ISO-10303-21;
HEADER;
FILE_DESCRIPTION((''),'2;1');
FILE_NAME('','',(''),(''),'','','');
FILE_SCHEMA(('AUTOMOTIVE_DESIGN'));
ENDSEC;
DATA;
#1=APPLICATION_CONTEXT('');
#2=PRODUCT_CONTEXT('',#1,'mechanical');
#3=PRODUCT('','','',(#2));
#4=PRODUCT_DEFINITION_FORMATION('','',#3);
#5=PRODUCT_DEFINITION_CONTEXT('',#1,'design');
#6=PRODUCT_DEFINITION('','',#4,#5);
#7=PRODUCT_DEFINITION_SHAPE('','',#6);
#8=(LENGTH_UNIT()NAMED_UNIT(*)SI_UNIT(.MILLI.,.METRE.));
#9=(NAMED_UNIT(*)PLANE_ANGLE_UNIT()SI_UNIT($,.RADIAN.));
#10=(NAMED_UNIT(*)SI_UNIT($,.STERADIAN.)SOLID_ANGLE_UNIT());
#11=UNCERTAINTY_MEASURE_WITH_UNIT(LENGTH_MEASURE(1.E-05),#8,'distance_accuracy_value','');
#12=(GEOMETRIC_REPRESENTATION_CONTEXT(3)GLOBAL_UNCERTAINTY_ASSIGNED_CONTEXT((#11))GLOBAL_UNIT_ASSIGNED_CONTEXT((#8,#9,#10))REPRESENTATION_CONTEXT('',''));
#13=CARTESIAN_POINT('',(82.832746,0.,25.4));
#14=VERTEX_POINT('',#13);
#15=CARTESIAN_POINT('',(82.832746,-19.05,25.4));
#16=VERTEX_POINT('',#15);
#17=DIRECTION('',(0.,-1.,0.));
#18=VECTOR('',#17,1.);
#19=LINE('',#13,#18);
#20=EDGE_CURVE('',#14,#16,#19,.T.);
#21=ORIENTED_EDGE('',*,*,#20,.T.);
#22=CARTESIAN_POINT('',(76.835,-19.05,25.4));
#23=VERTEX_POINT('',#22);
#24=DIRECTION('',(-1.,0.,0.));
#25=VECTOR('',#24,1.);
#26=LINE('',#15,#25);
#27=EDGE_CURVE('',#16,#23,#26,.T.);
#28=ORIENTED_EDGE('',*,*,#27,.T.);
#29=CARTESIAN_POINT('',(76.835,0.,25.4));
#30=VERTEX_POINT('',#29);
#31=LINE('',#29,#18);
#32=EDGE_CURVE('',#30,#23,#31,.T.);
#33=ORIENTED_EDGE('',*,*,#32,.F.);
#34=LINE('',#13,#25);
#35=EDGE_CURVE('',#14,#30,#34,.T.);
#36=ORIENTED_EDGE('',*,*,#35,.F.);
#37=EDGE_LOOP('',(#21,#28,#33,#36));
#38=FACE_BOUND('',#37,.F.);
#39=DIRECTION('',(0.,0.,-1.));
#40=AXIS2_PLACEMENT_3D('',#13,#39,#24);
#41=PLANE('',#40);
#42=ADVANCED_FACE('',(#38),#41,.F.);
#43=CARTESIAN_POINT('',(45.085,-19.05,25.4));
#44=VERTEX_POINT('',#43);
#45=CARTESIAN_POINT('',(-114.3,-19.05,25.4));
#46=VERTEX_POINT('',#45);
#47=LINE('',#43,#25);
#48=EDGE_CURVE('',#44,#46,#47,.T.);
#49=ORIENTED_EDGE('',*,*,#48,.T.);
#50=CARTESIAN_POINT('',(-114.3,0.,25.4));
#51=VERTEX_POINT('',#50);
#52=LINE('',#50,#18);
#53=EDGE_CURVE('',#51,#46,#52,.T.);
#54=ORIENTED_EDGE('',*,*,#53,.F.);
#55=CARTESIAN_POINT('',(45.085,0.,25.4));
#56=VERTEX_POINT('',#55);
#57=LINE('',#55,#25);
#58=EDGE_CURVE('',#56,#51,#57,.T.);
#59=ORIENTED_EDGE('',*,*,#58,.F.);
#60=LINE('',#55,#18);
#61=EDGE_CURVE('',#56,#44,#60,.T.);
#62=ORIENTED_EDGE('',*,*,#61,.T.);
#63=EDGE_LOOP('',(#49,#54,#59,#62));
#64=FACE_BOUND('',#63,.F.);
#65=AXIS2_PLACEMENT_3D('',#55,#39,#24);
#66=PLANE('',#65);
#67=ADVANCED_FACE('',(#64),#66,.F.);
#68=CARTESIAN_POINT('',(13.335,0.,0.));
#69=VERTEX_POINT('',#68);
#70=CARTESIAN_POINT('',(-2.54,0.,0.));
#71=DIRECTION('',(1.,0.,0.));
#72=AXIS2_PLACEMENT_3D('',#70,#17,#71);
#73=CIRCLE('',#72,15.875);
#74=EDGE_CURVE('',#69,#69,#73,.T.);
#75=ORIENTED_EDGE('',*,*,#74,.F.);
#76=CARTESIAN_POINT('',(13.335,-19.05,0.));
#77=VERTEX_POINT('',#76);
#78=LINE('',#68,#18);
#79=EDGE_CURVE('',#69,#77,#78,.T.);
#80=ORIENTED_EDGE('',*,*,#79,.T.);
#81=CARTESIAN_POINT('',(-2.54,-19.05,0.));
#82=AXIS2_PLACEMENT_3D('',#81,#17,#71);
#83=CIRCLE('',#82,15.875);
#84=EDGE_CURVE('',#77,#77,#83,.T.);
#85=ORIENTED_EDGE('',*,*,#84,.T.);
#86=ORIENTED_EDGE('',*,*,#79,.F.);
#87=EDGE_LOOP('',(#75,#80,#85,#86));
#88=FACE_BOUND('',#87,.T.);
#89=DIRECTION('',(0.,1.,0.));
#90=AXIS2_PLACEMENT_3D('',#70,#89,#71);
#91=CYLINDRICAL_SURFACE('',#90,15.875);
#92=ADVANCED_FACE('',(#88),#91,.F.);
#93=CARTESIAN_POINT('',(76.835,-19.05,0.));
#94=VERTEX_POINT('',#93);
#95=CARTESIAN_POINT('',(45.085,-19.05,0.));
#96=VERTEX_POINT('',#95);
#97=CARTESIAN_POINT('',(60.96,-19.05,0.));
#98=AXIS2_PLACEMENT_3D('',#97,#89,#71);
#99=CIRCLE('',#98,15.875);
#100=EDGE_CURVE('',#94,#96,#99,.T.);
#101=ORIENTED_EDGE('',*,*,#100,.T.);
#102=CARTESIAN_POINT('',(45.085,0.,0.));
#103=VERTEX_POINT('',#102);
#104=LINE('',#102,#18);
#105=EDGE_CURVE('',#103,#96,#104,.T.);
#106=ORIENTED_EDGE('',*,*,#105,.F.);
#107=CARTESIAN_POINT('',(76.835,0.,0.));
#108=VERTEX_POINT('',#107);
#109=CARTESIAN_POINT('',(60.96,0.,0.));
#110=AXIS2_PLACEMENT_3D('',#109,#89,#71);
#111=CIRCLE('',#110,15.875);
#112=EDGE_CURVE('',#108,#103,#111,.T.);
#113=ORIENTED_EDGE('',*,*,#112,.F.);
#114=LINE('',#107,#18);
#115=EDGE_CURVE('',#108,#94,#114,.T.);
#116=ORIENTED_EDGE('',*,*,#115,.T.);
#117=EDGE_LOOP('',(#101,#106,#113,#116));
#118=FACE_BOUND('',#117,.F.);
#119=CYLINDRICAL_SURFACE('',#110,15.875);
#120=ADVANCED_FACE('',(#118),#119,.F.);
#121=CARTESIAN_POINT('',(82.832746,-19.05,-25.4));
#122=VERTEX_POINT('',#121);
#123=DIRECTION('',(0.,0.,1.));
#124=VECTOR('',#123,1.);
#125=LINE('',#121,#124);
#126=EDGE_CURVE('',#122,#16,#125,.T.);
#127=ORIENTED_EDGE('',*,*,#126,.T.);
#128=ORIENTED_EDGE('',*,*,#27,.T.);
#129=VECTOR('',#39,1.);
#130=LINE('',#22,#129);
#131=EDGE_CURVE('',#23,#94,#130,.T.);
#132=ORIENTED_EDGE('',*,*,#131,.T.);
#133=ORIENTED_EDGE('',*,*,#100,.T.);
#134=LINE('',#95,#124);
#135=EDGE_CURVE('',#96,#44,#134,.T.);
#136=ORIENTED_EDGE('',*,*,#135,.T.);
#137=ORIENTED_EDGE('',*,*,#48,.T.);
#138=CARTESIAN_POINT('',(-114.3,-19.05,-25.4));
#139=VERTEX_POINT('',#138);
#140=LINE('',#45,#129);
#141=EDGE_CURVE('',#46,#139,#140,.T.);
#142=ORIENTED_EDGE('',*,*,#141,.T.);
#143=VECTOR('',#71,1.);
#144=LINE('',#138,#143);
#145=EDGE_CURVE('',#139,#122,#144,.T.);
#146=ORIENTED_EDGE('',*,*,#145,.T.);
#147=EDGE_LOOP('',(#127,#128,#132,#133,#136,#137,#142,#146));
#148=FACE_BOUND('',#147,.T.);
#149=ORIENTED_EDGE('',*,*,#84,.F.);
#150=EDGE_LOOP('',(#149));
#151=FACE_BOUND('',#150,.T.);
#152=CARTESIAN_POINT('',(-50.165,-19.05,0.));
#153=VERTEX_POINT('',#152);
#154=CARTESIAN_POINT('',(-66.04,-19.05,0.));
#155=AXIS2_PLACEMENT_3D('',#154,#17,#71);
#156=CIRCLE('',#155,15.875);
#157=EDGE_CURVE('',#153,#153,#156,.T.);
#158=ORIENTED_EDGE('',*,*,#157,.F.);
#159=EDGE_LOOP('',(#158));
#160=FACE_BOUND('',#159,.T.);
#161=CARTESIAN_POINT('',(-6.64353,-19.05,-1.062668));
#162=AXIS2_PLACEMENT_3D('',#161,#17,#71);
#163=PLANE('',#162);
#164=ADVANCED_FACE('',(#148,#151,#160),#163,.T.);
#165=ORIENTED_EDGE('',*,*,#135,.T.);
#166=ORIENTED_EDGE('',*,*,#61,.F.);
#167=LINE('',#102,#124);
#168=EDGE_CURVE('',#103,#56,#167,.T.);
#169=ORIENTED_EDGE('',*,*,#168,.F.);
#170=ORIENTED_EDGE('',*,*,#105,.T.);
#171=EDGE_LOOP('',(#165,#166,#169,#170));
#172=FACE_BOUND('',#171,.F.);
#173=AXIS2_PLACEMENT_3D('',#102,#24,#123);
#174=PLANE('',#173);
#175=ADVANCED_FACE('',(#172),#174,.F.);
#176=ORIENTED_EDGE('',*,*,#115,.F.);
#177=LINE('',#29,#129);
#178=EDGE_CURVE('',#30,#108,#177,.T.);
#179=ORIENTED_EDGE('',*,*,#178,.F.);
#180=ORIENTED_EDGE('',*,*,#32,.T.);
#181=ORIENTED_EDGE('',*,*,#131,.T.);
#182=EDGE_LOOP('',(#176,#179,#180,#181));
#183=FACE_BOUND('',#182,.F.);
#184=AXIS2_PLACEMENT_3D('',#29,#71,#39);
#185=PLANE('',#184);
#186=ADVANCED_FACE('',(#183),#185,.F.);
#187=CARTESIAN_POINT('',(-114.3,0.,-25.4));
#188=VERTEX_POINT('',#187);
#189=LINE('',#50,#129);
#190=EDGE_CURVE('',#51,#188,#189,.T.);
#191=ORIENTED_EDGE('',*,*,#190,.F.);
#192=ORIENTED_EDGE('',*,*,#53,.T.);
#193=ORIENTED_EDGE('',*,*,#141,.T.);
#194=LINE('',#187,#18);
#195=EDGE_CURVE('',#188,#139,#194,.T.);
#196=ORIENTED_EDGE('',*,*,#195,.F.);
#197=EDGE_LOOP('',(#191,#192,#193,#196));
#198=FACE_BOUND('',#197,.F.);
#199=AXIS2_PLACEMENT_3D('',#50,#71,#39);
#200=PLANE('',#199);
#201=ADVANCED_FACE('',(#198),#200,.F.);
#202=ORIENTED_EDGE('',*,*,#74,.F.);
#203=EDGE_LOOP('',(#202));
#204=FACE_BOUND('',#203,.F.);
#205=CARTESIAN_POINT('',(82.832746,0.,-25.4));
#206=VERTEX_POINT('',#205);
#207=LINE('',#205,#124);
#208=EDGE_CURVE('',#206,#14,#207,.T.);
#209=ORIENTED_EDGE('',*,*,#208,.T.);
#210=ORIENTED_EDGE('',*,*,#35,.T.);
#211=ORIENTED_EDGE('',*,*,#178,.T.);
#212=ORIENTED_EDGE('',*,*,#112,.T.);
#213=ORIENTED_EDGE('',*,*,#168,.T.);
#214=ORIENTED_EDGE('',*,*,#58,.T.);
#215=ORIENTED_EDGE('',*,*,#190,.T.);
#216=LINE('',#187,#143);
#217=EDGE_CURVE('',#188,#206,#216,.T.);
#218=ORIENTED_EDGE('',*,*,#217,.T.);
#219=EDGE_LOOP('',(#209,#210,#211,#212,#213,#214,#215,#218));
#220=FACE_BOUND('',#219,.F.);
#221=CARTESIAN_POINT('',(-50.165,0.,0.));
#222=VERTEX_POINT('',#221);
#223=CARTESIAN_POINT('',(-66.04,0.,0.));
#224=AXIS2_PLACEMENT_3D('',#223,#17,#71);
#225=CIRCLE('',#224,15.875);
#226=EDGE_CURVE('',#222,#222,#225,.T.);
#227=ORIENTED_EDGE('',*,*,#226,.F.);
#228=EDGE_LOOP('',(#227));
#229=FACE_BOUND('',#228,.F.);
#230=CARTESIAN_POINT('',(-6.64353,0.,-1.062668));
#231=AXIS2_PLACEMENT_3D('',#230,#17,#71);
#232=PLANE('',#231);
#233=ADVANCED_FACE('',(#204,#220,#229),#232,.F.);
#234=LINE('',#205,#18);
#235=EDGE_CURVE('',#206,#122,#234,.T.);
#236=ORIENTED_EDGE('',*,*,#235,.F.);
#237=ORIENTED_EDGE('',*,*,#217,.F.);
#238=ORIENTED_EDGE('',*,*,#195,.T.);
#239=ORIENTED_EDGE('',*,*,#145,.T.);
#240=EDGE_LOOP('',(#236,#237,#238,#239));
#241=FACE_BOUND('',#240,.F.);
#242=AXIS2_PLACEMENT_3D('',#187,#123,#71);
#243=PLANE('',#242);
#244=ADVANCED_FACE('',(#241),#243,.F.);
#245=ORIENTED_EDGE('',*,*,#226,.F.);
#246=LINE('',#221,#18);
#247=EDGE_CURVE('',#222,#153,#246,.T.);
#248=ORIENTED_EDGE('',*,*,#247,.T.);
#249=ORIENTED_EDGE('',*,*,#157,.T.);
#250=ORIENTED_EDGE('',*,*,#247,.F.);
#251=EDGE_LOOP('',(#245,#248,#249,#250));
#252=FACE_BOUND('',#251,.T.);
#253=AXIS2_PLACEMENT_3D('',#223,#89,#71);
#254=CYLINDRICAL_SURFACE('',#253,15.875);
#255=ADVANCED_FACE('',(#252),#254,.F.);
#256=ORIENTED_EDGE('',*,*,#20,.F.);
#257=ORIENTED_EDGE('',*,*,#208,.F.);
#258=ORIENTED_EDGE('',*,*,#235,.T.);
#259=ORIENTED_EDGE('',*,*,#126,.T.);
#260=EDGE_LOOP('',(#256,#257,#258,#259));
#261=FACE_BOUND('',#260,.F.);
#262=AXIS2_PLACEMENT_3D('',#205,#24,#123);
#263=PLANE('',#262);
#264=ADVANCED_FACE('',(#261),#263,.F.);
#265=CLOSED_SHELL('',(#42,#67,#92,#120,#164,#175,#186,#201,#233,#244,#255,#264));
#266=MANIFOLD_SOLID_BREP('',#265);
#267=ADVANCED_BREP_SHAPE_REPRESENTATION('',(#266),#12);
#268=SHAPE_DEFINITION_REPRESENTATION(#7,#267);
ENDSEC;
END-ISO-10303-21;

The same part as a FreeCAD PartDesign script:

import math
import FreeCAD as App
import Part
import Sketcher
from FreeCAD import Vector
Q = App.Units.Quantity

doc = App.newDocument("Part")
body = doc.addObject("PartDesign::Body", "Body")

# Sketch on XZ plane
sketch1 = body.newObject("Sketcher::SketchObject", "Sketch")
sketch1.AttachmentSupport = (doc.getObject("XZ_Plane"), [""])
sketch1.MapMode = "FlatFace"
sketch1.addGeometry([
    Part.LineSegment(Vector(-114, -25, 0), Vector(83, -25, 0)),  # 0
    Part.LineSegment(Vector(83, -25, 0), Vector(83, 25, 0)),  # 1
    Part.LineSegment(Vector(83, 25, 0), Vector(77, 25, 0)),  # 2
    Part.LineSegment(Vector(77, 25, 0), Vector(77, 0, 0)),  # 3
    Part.ArcOfCircle(Part.Circle(Vector(61, 0, 0), Vector(0, 0, 1), 16), math.radians(180), math.radians(360)),  # 4
    Part.LineSegment(Vector(45, 0, 0), Vector(45, 25, 0)),  # 5
    Part.LineSegment(Vector(45, 25, 0), Vector(-114, 25, 0)),  # 6
    Part.LineSegment(Vector(-114, 25, 0), Vector(-114, -25, 0)),  # 7
    Part.Circle(Vector(-66, 0, 0), Vector(0, 0, 1), 16),  # 8
    Part.Circle(Vector(-3, 0, 0), Vector(0, 0, 1), 16),  # 9
], False)
sketch1.addConstraint([
    Sketcher.Constraint("Coincident", 0, 2, 1, 1),
    Sketcher.Constraint("Coincident", 1, 2, 2, 1),
    Sketcher.Constraint("Coincident", 2, 2, 3, 1),
    Sketcher.Constraint("Tangent", 3, 2, 4, 2),
    Sketcher.Constraint("Tangent", 4, 1, 5, 1),
    Sketcher.Constraint("Coincident", 5, 2, 6, 1),
    Sketcher.Constraint("Coincident", 6, 2, 7, 1),
    Sketcher.Constraint("Coincident", 7, 2, 0, 1),
    Sketcher.Constraint("Horizontal", 0),
    Sketcher.Constraint("Vertical", 1),
    Sketcher.Constraint("Horizontal", 2),
    Sketcher.Constraint("Vertical", 3),
    Sketcher.Constraint("Vertical", 5),
    Sketcher.Constraint("Horizontal", 6),
    Sketcher.Constraint("Vertical", 7),
    Sketcher.Constraint("Equal", 4, 8),
    Sketcher.Constraint("Equal", 8, 9),
    Sketcher.Constraint("PointOnObject", 4, 3, -1),
    Sketcher.Constraint("PointOnObject", 8, 3, -1),
    Sketcher.Constraint("PointOnObject", 9, 3, -1),
    Sketcher.Constraint("Horizontal", 2, 2, 5, 2),
    Sketcher.Constraint("Diameter", 8, Q("1.25 in")),
    Sketcher.Constraint("DistanceY", 1, 1, 1, 2, Q("2 in")),
    Sketcher.Constraint("DistanceY", 3, 2, 3, 1, Q("1 in")),
    Sketcher.Constraint("DistanceX", 8, 3, 4, 3, Q("5 in")),
    Sketcher.Constraint("DistanceX", -1, 1, 4, 3, Q("2.4 in")),
    Sketcher.Constraint("DistanceX", 9, 3, -1, 1, Q("0.1 in")),
    Sketcher.Constraint("DistanceX", 6, 2, -1, 1, Q("4.5 in")),
    Sketcher.Constraint("DistanceX", 0, 1, 0, 2, 197.132746),
])
pad1 = body.newObject("PartDesign::Pad", "Pad")
pad1.Profile = sketch1
pad1.Length = Q("0.75 in")

doc.recompute()
